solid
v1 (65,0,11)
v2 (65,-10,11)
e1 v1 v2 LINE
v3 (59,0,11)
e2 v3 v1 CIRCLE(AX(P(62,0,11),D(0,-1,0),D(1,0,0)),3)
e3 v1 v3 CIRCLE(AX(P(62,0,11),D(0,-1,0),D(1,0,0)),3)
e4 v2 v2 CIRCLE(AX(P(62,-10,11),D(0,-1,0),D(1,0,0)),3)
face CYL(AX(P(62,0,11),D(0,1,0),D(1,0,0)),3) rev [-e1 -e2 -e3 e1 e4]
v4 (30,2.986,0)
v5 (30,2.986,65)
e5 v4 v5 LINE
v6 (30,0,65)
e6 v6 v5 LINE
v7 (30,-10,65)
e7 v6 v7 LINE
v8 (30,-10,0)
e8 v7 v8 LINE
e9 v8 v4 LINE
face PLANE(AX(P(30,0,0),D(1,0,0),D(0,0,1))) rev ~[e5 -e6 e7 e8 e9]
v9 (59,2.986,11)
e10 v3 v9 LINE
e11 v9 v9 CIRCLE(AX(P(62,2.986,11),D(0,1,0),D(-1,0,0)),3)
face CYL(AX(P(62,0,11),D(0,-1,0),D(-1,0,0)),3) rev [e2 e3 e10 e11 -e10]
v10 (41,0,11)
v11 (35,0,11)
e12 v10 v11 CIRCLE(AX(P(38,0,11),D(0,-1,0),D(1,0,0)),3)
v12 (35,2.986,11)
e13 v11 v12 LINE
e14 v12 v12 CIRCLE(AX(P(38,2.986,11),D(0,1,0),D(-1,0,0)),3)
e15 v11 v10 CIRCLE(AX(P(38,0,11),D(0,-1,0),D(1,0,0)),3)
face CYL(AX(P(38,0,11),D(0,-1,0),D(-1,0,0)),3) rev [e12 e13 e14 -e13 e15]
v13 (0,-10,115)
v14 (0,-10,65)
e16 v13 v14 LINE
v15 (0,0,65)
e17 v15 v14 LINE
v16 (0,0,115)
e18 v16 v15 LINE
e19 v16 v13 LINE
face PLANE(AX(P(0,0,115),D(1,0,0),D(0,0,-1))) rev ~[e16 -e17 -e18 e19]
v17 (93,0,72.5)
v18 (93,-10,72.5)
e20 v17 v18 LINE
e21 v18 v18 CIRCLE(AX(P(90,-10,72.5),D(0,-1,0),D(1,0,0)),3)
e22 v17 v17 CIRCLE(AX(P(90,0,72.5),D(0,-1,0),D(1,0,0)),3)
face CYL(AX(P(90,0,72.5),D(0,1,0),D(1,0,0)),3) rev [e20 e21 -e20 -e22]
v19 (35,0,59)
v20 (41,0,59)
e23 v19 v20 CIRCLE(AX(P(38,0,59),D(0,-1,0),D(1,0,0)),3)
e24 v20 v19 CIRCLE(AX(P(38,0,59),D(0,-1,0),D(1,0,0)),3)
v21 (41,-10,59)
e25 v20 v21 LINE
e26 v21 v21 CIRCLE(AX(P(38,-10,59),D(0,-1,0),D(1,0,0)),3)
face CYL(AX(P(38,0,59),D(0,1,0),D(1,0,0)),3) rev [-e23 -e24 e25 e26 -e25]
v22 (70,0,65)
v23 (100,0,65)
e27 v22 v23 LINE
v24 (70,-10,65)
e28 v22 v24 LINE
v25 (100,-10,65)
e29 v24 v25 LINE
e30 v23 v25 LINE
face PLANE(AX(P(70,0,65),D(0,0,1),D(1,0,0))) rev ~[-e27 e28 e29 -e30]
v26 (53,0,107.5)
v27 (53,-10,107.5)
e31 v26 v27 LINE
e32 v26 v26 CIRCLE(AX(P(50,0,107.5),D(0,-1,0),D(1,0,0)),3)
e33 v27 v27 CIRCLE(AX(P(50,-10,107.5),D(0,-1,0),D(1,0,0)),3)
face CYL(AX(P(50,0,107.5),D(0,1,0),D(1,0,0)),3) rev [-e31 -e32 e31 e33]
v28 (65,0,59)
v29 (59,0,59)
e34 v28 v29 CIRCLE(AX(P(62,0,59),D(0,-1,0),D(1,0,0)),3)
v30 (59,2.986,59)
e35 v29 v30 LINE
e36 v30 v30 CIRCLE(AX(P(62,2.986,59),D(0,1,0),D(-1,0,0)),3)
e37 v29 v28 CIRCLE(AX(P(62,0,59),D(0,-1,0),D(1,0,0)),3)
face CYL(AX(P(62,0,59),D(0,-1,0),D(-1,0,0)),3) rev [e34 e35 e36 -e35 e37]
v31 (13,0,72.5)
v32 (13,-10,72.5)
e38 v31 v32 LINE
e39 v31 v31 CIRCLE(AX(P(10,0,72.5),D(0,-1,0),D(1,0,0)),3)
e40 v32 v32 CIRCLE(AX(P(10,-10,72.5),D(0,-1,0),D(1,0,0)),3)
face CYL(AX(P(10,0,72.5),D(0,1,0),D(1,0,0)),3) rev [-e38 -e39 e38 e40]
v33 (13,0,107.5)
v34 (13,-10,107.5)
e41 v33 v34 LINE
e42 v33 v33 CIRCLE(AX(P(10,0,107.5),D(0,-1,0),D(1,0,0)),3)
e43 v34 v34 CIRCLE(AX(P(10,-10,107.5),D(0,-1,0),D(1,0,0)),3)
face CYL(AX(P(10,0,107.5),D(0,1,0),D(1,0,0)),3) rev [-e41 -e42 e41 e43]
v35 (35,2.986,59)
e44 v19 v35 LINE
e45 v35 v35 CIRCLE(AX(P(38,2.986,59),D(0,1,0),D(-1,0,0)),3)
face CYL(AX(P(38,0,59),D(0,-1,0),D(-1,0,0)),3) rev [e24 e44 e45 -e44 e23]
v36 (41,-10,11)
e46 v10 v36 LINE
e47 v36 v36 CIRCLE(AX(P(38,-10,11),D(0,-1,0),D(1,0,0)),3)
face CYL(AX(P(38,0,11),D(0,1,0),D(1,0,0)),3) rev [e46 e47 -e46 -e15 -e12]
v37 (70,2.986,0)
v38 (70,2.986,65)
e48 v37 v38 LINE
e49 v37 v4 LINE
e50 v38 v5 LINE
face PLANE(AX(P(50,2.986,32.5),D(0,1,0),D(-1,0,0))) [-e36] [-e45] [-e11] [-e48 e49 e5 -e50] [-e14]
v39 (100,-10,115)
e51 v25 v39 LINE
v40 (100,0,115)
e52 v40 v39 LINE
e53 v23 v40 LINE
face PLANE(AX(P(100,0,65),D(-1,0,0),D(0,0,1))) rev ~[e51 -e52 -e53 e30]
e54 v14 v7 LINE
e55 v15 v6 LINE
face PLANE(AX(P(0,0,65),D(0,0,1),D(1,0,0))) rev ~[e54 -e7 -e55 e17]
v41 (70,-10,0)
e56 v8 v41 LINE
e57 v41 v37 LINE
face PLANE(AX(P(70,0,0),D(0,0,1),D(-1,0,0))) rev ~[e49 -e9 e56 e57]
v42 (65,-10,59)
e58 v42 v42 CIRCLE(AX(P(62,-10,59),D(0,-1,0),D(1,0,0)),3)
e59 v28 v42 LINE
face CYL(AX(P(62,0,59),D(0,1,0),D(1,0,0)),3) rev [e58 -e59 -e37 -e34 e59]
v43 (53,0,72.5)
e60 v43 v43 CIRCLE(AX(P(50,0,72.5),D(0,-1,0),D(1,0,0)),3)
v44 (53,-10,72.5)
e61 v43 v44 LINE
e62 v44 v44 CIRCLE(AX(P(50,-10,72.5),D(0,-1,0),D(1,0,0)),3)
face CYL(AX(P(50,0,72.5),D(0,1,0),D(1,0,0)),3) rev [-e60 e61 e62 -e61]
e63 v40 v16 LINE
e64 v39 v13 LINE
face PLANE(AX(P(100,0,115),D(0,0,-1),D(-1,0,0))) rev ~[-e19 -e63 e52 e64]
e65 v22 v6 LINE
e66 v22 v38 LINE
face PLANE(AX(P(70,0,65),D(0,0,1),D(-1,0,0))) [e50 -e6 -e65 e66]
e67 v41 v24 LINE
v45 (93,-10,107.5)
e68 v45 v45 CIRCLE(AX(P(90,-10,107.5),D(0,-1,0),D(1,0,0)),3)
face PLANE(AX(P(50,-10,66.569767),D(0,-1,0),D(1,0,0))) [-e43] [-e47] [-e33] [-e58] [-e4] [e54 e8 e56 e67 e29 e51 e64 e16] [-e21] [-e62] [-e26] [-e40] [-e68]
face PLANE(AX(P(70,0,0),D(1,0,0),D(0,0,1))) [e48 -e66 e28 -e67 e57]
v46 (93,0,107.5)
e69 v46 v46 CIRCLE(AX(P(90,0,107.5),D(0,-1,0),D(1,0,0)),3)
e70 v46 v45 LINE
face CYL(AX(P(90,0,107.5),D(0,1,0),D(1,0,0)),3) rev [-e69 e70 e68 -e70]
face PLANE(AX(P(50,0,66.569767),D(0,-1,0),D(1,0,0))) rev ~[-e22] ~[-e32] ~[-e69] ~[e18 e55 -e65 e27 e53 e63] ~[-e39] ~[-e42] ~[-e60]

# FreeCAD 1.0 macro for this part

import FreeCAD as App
import Part
import Sketcher

V = App.Vector
Q = App.Units.Quantity


def add_polygon(sketch, points):
    """Adds a closed chain of lines whose ends are joined by coincident constraints."""
    first, n = sketch.GeometryCount, len(points)
    for a, b in zip(points, points[1:] + points[:1]):
        sketch.addGeometry(Part.LineSegment(App.Vector(*a, 0), App.Vector(*b, 0)), False)
    for i in range(n):
        sketch.addConstraint(Sketcher.Constraint("Coincident", first + i, 2, first + (i + 1) % n, 1))

doc = App.newDocument("Part")
params = doc.addObject("Spreadsheet::Sheet", "Params")
for row, (alias, value) in enumerate([
    ("sketch1_diameter", "6 mm"),
    ("sketch1_width", "40 mm"),
    ("sketch1_width2", "30 mm"),
    ("sketch1_height", "65 mm"),
    ("sketch1_height2", "50 mm"),
    ("pad1_length", "10 mm"),
    ("sketch2_diameter", "6 mm"),
    ("sketch2_width", "40 mm"),
    ("sketch2_height", "65 mm"),
    ("pad2_length", "2.986 mm"),
], start=1):
    params.set(f"A{row}", alias)
    params.set(f"B{row}", "=" + value)
    params.setAlias(f"B{row}", alias)

body = doc.addObject("PartDesign::Body", "Body")

# Sketch on XZ plane
sketch1 = body.newObject("Sketcher::SketchObject", "Sketch")
sketch1.AttachmentSupport = (doc.getObject("XZ_Plane"), [""])
sketch1.MapMode = "FlatFace"
add_polygon(sketch1, [(30, 65), (30, 0), (70, 0), (70, 65), (100, 65), (100, 115), (0, 115), (0, 65)])  # lines 0-7
sketch1.addGeometry(Part.Circle(V(38, 11, 0), V(0, 0, 1), 3), False)  # 8
sketch1.addGeometry(Part.Circle(V(38, 59, 0), V(0, 0, 1), 3), False)  # 9
sketch1.addGeometry(Part.Circle(V(62, 11, 0), V(0, 0, 1), 3), False)  # 10
sketch1.addGeometry(Part.Circle(V(62, 59, 0), V(0, 0, 1), 3), False)  # 11
sketch1.addGeometry(Part.Circle(V(10, 72.5, 0), V(0, 0, 1), 3), False)  # 12
sketch1.addGeometry(Part.Circle(V(10, 107.5, 0), V(0, 0, 1), 3), False)  # 13
sketch1.addGeometry(Part.Circle(V(50, 72.5, 0), V(0, 0, 1), 3), False)  # 14
sketch1.addGeometry(Part.Circle(V(90, 72.5, 0), V(0, 0, 1), 3), False)  # 15
sketch1.addGeometry(Part.Circle(V(50, 107.5, 0), V(0, 0, 1), 3), False)  # 16
sketch1.addGeometry(Part.Circle(V(90, 107.5, 0), V(0, 0, 1), 3), False)  # 17
sketch1.addConstraint([
    Sketcher.Constraint("Vertical", 0),
    Sketcher.Constraint("Horizontal", 1),
    Sketcher.Constraint("Vertical", 2),
    Sketcher.Constraint("Horizontal", 3),
    Sketcher.Constraint("Vertical", 4),
    Sketcher.Constraint("Horizontal", 5),
    Sketcher.Constraint("Vertical", 6),
    Sketcher.Constraint("Horizontal", 7),
    Sketcher.Constraint("Equal", 8, 9),
    Sketcher.Constraint("Equal", 9, 10),
    Sketcher.Constraint("Equal", 10, 11),
    Sketcher.Constraint("Equal", 11, 12),
    Sketcher.Constraint("Equal", 12, 13),
    Sketcher.Constraint("Equal", 13, 14),
    Sketcher.Constraint("Equal", 14, 15),
    Sketcher.Constraint("Equal", 15, 16),
    Sketcher.Constraint("Equal", 16, 17),
    Sketcher.Constraint("PointOnObject", 0, 2, -1),
    Sketcher.Constraint("PointOnObject", 5, 2, -2),
    Sketcher.Constraint("Horizontal", 8, 3, 10, 3),
    Sketcher.Constraint("Horizontal", 9, 3, 11, 3),
    Sketcher.Constraint("Horizontal", 12, 3, 14, 3),
    Sketcher.Constraint("Horizontal", 14, 3, 15, 3),
    Sketcher.Constraint("Horizontal", 13, 3, 16, 3),
    Sketcher.Constraint("Horizontal", 16, 3, 17, 3),
    Sketcher.Constraint("Horizontal", 3, 2, 6, 2),
    Sketcher.Constraint("Vertical", 8, 3, 9, 3),
    Sketcher.Constraint("Vertical", 10, 3, 11, 3),
    Sketcher.Constraint("Vertical", 12, 3, 13, 3),
    Sketcher.Constraint("Vertical", 14, 3, 16, 3),
    Sketcher.Constraint("Vertical", 15, 3, 17, 3),
    Sketcher.Constraint("Equal", 3, 7),
    Sketcher.Constraint("Diameter", 8, Q("6 mm")),
    Sketcher.Constraint("DistanceX", 1, 1, 1, 2, Q("40 mm")),
    Sketcher.Constraint("DistanceX", 3, 1, 3, 2, Q("30 mm")),
    Sketcher.Constraint("DistanceY", 0, 2, 0, 1, Q("65 mm")),
    Sketcher.Constraint("DistanceY", 4, 1, 4, 2, Q("50 mm")),
    Sketcher.Constraint("DistanceX", -1, 1, 8, 3, Q("38 mm")),
    Sketcher.Constraint("DistanceY", -1, 1, 8, 3, Q("11 mm")),
    Sketcher.Constraint("DistanceY", -1, 1, 9, 3, Q("59 mm")),
    Sketcher.Constraint("DistanceX", -1, 1, 10, 3, Q("62 mm")),
    Sketcher.Constraint("DistanceX", -1, 1, 12, 3, Q("10 mm")),
    Sketcher.Constraint("DistanceX", -1, 1, 14, 3, Q("50 mm")),
    Sketcher.Constraint("DistanceX", -1, 1, 15, 3, Q("90 mm")),
    Sketcher.Constraint("DistanceY", 12, 3, 13, 3, Q("35 mm")),
    Sketcher.Constraint("DistanceY", -1, 1, 12, 3, Q("72.5 mm")),
])
sketch1.setExpression("Constraints[40]", "Params.sketch1_diameter")
sketch1.setExpression("Constraints[41]", "Params.sketch1_width")
sketch1.setExpression("Constraints[42]", "Params.sketch1_width2")
sketch1.setExpression("Constraints[43]", "Params.sketch1_height")
sketch1.setExpression("Constraints[44]", "Params.sketch1_height2")
pad1 = body.newObject("PartDesign::Pad", "Pad")
pad1.Profile = sketch1
pad1.setExpression("Length", "Params.pad1_length")

# Sketch on XZ plane
sketch2 = body.newObject("Sketcher::SketchObject", "Sketch001")
sketch2.AttachmentSupport = (doc.getObject("XZ_Plane"), [""])
sketch2.MapMode = "FlatFace"
add_polygon(sketch2, [(70, 65), (70, 0), (30, 0), (30, 65)])  # lines 0-3
sketch2.addGeometry(Part.Circle(V(62, 11, 0), V(0, 0, 1), 3), False)  # 4
sketch2.addGeometry(Part.Circle(V(38, 11, 0), V(0, 0, 1), 3), False)  # 5
sketch2.addGeometry(Part.Circle(V(62, 59, 0), V(0, 0, 1), 3), False)  # 6
sketch2.addGeometry(Part.Circle(V(38, 59, 0), V(0, 0, 1), 3), False)  # 7
sketch2.addConstraint([
    Sketcher.Constraint("Vertical", 0),
    Sketcher.Constraint("Horizontal", 1),
    Sketcher.Constraint("Vertical", 2),
    Sketcher.Constraint("Horizontal", 3),
    Sketcher.Constraint("Equal", 4, 5),
    Sketcher.Constraint("Equal", 5, 6),
    Sketcher.Constraint("Equal", 6, 7),
    Sketcher.Constraint("PointOnObject", 0, 2, -1),
    Sketcher.Constraint("Horizontal", 4, 3, 5, 3),
    Sketcher.Constraint("Horizontal", 6, 3, 7, 3),
    Sketcher.Constraint("Vertical", 4, 3, 6, 3),
    Sketcher.Constraint("Vertical", 5, 3, 7, 3),
    Sketcher.Constraint("Diameter", 4, Q("6 mm")),
    Sketcher.Constraint("DistanceX", 1, 2, 1, 1, Q("40 mm")),
    Sketcher.Constraint("DistanceY", 0, 2, 0, 1, Q("65 mm")),
    Sketcher.Constraint("DistanceX", -1, 1, 4, 3, Q("62 mm")),
    Sketcher.Constraint("DistanceY", -1, 1, 4, 3, Q("11 mm")),
    Sketcher.Constraint("DistanceX", -1, 1, 5, 3, Q("38 mm")),
    Sketcher.Constraint("DistanceY", -1, 1, 6, 3, Q("59 mm")),
    Sketcher.Constraint("DistanceX", -1, 1, 0, 2, Q("70 mm")),
])
sketch2.setExpression("Constraints[16]", "Params.sketch2_diameter")
sketch2.setExpression("Constraints[17]", "Params.sketch2_width")
sketch2.setExpression("Constraints[18]", "Params.sketch2_height")
pad2 = body.newObject("PartDesign::Pad", "Pad001")
pad2.Profile = sketch2
pad2.setExpression("Length", "Params.pad2_length")
pad2.Reversed = True

doc.recompute()
